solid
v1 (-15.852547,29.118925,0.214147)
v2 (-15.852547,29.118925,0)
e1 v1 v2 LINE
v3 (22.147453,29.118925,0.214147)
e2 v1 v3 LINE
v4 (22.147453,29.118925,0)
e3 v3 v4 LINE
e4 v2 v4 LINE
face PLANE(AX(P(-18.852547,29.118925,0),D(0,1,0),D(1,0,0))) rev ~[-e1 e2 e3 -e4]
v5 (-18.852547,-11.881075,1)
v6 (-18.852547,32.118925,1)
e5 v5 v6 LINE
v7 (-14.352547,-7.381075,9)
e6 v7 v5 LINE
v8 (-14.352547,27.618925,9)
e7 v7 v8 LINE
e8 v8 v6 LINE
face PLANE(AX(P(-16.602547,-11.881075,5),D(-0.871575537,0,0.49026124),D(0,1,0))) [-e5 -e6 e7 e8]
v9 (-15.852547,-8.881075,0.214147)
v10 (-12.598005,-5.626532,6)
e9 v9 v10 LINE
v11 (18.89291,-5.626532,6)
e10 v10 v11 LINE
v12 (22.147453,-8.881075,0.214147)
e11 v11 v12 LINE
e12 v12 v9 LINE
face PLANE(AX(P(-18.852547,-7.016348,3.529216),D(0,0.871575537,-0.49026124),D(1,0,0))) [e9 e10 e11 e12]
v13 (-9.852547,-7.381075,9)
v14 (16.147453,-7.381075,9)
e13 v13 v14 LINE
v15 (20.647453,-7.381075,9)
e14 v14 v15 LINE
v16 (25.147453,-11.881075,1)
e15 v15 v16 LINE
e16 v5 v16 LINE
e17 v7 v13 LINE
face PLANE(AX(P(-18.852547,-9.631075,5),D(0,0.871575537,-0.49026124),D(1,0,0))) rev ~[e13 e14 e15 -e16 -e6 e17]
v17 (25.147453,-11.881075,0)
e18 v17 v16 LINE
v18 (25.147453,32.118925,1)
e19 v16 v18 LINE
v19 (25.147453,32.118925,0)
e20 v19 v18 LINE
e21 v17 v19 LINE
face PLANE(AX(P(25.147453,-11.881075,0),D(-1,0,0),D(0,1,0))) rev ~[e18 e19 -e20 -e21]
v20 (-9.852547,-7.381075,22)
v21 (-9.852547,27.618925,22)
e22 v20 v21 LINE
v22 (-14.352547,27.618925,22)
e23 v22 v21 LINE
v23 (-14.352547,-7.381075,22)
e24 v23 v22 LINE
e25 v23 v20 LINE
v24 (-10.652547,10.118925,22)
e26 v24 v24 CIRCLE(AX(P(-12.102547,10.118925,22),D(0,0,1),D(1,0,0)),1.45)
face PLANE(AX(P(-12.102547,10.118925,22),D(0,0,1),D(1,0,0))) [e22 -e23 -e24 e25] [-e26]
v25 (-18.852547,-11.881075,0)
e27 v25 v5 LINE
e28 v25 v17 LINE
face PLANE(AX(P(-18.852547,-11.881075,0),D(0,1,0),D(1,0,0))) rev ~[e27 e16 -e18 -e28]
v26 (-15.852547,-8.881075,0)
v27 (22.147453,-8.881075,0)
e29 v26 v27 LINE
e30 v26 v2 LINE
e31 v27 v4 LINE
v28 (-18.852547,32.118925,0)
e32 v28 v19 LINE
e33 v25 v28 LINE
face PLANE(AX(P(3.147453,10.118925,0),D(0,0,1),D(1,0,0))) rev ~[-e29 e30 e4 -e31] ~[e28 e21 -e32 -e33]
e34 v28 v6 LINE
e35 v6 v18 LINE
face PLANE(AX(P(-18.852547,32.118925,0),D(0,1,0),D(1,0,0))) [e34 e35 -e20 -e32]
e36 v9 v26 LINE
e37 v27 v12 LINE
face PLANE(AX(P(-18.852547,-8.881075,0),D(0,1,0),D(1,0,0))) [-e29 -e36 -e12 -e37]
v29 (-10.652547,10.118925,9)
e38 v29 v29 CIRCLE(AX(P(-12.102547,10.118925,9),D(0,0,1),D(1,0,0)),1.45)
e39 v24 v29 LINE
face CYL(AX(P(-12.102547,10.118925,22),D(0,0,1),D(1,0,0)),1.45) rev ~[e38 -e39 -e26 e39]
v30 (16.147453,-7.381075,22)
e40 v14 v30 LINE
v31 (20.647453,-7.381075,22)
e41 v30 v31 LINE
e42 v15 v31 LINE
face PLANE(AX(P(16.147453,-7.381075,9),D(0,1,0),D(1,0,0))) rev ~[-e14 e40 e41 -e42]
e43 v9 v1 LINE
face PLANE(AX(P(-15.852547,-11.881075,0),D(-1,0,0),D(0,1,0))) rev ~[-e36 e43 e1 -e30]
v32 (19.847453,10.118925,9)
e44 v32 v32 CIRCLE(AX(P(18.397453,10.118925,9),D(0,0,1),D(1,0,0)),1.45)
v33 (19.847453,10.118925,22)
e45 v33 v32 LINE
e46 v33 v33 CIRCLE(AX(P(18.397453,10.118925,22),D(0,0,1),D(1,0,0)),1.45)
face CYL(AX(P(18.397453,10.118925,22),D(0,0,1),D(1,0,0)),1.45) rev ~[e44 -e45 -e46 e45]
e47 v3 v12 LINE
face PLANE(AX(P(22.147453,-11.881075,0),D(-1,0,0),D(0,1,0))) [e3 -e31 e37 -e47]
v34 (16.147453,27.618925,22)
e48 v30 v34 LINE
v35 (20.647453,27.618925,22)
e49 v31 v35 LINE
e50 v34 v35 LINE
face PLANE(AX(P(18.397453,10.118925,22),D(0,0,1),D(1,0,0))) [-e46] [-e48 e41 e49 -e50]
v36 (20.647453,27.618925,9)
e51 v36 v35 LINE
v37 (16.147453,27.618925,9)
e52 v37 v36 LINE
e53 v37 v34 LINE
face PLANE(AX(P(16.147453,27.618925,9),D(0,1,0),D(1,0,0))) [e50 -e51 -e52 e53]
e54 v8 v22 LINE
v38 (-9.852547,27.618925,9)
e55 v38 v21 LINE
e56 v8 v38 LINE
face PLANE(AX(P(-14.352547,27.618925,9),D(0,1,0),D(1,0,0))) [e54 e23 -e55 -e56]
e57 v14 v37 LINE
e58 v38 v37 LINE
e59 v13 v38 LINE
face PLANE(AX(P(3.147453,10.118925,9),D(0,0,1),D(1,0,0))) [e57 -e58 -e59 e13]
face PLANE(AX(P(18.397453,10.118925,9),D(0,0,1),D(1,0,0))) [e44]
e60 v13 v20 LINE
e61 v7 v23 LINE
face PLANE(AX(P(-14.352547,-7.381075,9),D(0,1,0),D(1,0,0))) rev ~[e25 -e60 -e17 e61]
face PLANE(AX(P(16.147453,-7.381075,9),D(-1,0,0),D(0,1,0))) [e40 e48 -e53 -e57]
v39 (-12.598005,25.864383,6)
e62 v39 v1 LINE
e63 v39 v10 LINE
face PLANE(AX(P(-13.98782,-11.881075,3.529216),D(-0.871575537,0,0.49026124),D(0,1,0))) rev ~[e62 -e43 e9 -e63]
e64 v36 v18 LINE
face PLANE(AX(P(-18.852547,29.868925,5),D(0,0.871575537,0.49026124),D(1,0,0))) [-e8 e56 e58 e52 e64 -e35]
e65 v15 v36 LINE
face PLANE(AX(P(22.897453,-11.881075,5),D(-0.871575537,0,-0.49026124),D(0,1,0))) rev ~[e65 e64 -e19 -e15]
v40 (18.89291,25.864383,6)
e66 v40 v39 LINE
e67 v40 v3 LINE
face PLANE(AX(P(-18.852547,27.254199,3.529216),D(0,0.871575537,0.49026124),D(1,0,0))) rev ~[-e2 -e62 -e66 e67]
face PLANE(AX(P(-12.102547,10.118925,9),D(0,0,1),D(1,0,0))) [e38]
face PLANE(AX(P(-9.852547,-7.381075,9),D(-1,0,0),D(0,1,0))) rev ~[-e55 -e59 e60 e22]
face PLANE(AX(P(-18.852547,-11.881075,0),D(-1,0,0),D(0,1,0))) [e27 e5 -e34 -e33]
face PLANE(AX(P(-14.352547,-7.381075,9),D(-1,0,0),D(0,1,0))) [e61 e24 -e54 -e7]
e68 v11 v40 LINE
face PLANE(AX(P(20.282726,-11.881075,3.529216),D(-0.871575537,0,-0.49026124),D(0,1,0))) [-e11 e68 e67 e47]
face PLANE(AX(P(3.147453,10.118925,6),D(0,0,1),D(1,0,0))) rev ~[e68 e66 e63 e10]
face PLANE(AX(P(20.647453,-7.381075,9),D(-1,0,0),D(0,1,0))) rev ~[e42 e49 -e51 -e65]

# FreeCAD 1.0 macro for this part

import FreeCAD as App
import Part
import Sketcher

V = App.Vector
Q = App.Units.Quantity


def edges_at(feature, points):
    """Names of the edges that pass closest to the given points."""
    edges = feature.Shape.Edges
    near = lambda p: min(range(len(edges)), key=lambda i: edges[i].distToShape(Part.Vertex(*p))[0])
    return sorted({f"Edge{near(p) + 1}" for p in points})


def faces_at(feature, points):
    """Names of the faces that lie closest to the given points."""
    faces = feature.Shape.Faces
    near = lambda p: min(range(len(faces)), key=lambda i: faces[i].distToShape(Part.Vertex(*p))[0])
    return sorted({f"Face{near(p) + 1}" for p in points})

doc = App.newDocument("Part")
body = doc.addObject("PartDesign::Body", "Body")

# Sketch on XY plane
sketch1 = body.newObject("Sketcher::SketchObject", "Sketch")
sketch1.AttachmentSupport = (doc.getObject("XY_Plane"), [""])
sketch1.MapMode = "FlatFace"
sketch1.addGeometry([
    Part.LineSegment(V(-18.852547, 32.118925, 0), V(-18.852547, -11.881075, 0)),
    Part.LineSegment(V(-18.852547, -11.881075, 0), V(25.147453, -11.881075, 0)),
    Part.LineSegment(V(25.147453, -11.881075, 0), V(25.147453, 32.118925, 0)),
    Part.LineSegment(V(25.147453, 32.118925, 0), V(-18.852547, 32.118925, 0)),
], False)
sketch1.addConstraint([
    Sketcher.Constraint("Coincident", 0, 2, 1, 1),
    Sketcher.Constraint("Coincident", 1, 2, 2, 1),
    Sketcher.Constraint("Coincident", 2, 2, 3, 1),
    Sketcher.Constraint("Coincident", 3, 2, 0, 1),
    Sketcher.Constraint("Vertical", 0),
    Sketcher.Constraint("Horizontal", 1),
    Sketcher.Constraint("Vertical", 2),
    Sketcher.Constraint("Horizontal", 3),
    Sketcher.Constraint("Equal", 3, 0),
    Sketcher.Constraint("DistanceX", 1, 1, 1, 2, Q("44 mm")),
    Sketcher.Constraint("DistanceX", 0, 2, -1, 1, Q("18.852547 mm")),
    Sketcher.Constraint("DistanceY", 0, 2, -1, 1, Q("11.881075 mm")),
])
pad1 = body.newObject("PartDesign::Pad", "Pad")
pad1.Profile = sketch1
pad1.Length = 9
doc.recompute()

chamfer = body.newObject("PartDesign::Chamfer", "Chamfer")
chamfer.Base = (pad1, edges_at(pad1, [
    (3.147, -11.881, 9),
    (-18.853, 10.119, 9),
    (3.147, 32.119, 9),
    (25.147, 10.119, 9),
]))
chamfer.ChamferType = "Two distances"
chamfer.Size = 4.5
chamfer.Size2 = 8
chamfer.FlipDirection = True
doc.recompute()

thickness = body.newObject("PartDesign::Thickness", "Thickness")
thickness.Base = (chamfer, faces_at(chamfer, [(3.147, 10.119, 0)]))
thickness.Value = 3
thickness.Reversed = True
thickness.Join = "Arc"

# Sketch on XY plane
sketch2 = body.newObject("Sketcher::SketchObject", "Sketch001")
sketch2.AttachmentSupport = (doc.getObject("XY_Plane"), [""])
sketch2.MapMode = "FlatFace"
sketch2.AttachmentOffset = App.Placement(V(0, 0, 9), App.Rotation())
sketch2.addGeometry([
    Part.LineSegment(V(16.147453, 27.618925, 0), V(16.147453, -7.381075, 0)),  # 0
    Part.LineSegment(V(16.147453, -7.381075, 0), V(20.647453, -7.381075, 0)),  # 1
    Part.LineSegment(V(20.647453, -7.381075, 0), V(20.647453, 27.618925, 0)),  # 2
    Part.LineSegment(V(20.647453, 27.618925, 0), V(16.147453, 27.618925, 0)),  # 3
    Part.LineSegment(V(-14.352547, 27.618925, 0), V(-14.352547, -7.381075, 0)),  # 4
    Part.LineSegment(V(-14.352547, -7.381075, 0), V(-9.852547, -7.381075, 0)),  # 5
    Part.LineSegment(V(-9.852547, -7.381075, 0), V(-9.852547, 27.618925, 0)),  # 6
    Part.LineSegment(V(-9.852547, 27.618925, 0), V(-14.352547, 27.618925, 0)),  # 7
], False)
sketch2.addConstraint([
    Sketcher.Constraint("Coincident", 0, 2, 1, 1),
    Sketcher.Constraint("Coincident", 1, 2, 2, 1),
    Sketcher.Constraint("Coincident", 2, 2, 3, 1),
    Sketcher.Constraint("Coincident", 3, 2, 0, 1),
    Sketcher.Constraint("Coincident", 4, 2, 5, 1),
    Sketcher.Constraint("Coincident", 5, 2, 6, 1),
    Sketcher.Constraint("Coincident", 6, 2, 7, 1),
    Sketcher.Constraint("Coincident", 7, 2, 4, 1),
    Sketcher.Constraint("Vertical", 0),
    Sketcher.Constraint("Horizontal", 1),
    Sketcher.Constraint("Vertical", 2),
    Sketcher.Constraint("Horizontal", 3),
    Sketcher.Constraint("Vertical", 4),
    Sketcher.Constraint("Horizontal", 5),
    Sketcher.Constraint("Vertical", 6),
    Sketcher.Constraint("Horizontal", 7),
    Sketcher.Constraint("Horizontal", 1, 2, 4, 2),
    Sketcher.Constraint("Horizontal", 3, 2, 6, 2),
    Sketcher.Constraint("Equal", 3, 5),
    Sketcher.Constraint("DistanceY", 0, 2, 0, 1, Q("35 mm")),
    Sketcher.Constraint("DistanceX", 1, 1, 1, 2, Q("4.5 mm")),
    Sketcher.Constraint("DistanceX", 4, 2, 1, 2, Q("35 mm")),
    Sketcher.Constraint("DistanceX", -1, 1, 0, 2, Q("16.147453 mm")),
    Sketcher.Constraint("DistanceY", 0, 2, -1, 1, Q("7.381075 mm")),
])
pad2 = body.newObject("PartDesign::Pad", "Pad001")
pad2.Profile = sketch2
pad2.Length = 13

# Sketch on XY plane
sketch3 = body.newObject("Sketcher::SketchObject", "Sketch002")
sketch3.AttachmentSupport = (doc.getObject("XY_Plane"), [""])
sketch3.MapMode = "FlatFace"
sketch3.AttachmentOffset = App.Placement(V(0, 0, 22), App.Rotation())
sketch3.addGeometry([
    Part.Circle(V(-12.102547, 10.118925, 0), V(0, 0, 1), 1.45),
    Part.Circle(V(18.397453, 10.118925, 0), V(0, 0, 1), 1.45),
], False)
sketch3.addConstraint([
    Sketcher.Constraint("Equal", 0, 1),
    Sketcher.Constraint("Horizontal", 0, 3, 1, 3),
    Sketcher.Constraint("Diameter", 0, Q("2.9 mm")),
    Sketcher.Constraint("DistanceX", 0, 3, 1, 3, Q("30.5 mm")),
    Sketcher.Constraint("DistanceX", 0, 3, -1, 1, Q("12.102547 mm")),
    Sketcher.Constraint("DistanceY", -1, 1, 0, 3, Q("10.118925 mm")),
])
pocket1 = body.newObject("PartDesign::Pocket", "Pocket")
pocket1.Profile = sketch3
pocket1.Length = 13

doc.recompute()
